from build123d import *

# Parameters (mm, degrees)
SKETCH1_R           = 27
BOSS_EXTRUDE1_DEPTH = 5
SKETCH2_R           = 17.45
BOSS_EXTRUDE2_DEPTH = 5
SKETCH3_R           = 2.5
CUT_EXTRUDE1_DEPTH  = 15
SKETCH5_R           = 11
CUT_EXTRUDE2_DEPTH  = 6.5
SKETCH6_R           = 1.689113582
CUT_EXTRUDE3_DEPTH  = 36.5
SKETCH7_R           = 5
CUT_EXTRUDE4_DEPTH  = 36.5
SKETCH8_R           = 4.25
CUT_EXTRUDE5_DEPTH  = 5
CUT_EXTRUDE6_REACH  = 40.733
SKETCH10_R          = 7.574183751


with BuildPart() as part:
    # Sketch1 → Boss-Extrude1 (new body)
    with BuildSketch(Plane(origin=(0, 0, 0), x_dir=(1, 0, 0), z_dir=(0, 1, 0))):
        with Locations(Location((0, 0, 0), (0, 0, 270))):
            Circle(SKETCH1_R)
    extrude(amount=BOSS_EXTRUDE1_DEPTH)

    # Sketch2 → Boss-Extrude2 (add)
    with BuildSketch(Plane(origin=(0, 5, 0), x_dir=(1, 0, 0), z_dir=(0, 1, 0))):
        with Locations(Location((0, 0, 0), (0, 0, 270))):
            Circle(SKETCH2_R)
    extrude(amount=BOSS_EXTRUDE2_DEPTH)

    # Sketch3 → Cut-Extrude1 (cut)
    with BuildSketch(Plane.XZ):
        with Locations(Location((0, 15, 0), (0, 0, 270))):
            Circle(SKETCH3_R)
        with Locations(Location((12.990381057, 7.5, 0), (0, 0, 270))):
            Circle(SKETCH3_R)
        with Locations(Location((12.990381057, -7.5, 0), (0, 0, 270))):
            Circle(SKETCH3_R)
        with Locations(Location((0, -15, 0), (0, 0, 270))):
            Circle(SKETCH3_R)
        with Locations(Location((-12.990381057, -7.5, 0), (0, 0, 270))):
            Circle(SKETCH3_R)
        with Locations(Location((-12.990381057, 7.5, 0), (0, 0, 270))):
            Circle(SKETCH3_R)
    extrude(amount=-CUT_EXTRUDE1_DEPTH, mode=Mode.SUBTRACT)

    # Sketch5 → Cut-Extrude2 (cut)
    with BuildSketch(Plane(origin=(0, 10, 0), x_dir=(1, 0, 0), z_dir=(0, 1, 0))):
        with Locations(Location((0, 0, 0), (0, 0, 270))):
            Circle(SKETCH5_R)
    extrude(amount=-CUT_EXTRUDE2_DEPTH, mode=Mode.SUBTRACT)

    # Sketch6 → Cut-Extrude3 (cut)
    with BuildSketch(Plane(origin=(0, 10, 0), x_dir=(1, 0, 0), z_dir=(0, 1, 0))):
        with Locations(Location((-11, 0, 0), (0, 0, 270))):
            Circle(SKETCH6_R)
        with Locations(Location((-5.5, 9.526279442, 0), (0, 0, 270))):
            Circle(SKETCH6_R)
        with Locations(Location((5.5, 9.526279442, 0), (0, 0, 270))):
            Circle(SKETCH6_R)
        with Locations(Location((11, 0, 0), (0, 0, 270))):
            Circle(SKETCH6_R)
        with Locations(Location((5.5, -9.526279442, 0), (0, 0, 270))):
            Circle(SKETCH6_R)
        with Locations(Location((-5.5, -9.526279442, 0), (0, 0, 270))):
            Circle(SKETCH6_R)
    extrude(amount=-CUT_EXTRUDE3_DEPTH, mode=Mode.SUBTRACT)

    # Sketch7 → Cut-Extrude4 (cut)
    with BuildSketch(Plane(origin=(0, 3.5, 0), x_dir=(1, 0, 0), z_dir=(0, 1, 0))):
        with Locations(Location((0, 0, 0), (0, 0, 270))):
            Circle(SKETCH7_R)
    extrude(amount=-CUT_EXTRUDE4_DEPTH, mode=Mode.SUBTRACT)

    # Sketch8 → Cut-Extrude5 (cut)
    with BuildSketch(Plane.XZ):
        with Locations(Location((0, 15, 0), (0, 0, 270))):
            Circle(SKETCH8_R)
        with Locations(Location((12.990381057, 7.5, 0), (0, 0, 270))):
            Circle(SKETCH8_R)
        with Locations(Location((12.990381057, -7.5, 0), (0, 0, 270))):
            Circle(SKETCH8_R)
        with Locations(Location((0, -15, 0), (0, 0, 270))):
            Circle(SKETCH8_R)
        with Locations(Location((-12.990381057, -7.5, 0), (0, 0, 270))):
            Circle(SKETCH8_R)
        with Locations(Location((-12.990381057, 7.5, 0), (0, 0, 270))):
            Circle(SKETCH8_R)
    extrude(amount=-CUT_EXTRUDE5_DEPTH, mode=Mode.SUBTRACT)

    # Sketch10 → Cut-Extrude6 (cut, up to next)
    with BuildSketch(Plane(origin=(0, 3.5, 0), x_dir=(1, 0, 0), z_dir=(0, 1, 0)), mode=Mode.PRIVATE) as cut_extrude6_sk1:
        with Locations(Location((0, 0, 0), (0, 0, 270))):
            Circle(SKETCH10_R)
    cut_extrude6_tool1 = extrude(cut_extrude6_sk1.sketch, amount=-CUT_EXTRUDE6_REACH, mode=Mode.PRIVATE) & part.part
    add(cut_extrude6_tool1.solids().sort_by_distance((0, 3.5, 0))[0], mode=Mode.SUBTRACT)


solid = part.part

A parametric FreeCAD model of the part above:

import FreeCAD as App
import Part
import Sketcher
from FreeCAD import Vector

doc = App.newDocument("Part")
body = doc.addObject("PartDesign::Body", "Body")

sketch1 = body.newObject("Sketcher::SketchObject", "Sketch")
sketch1.AttachmentSupport = (doc.getObject("XZ_Plane"), [""])
sketch1.MapMode = "FlatFace"
sketch1.addGeometry(Part.Circle(Vector(0, 0, 0), Vector(0, 0, 1), 27), False)
sketch1.addConstraint(Sketcher.Constraint("Coincident", 0, 3, -1, 1))
sketch1.addConstraint(Sketcher.Constraint("Diameter", 0, 54.0))
pad1 = body.newObject("PartDesign::Pad", "Pad")
pad1.Profile = sketch1
pad1.Length = 5
pad1.Reversed = True

sketch2 = body.newObject("Sketcher::SketchObject", "Sketch001")
sketch2.AttachmentSupport = (doc.getObject("XZ_Plane"), [""])
sketch2.MapMode = "FlatFace"
sketch2.AttachmentOffset = App.Placement(Vector(0, 0, -5), App.Rotation())
sketch2.addGeometry(Part.Circle(Vector(0, 0, 0), Vector(0, 0, 1), 17), False)
sketch2.addConstraint(Sketcher.Constraint("Coincident", 0, 3, -1, 1))
sketch2.addConstraint(Sketcher.Constraint("Diameter", 0, 34.9))
pad2 = body.newObject("PartDesign::Pad", "Pad001")
pad2.Profile = sketch2
pad2.Length = 5
pad2.Reversed = True

sketch3 = body.newObject("Sketcher::SketchObject", "Sketch002")
sketch3.AttachmentSupport = (doc.getObject("XZ_Plane"), [""])
sketch3.MapMode = "FlatFace"
sketch3.addGeometry(Part.Circle(Vector(0, 15, 0), Vector(0, 0, 1), 2.5), False)
sketch3.addGeometry(Part.Circle(Vector(13, 7.5, 0), Vector(0, 0, 1), 2.5), False)
sketch3.addGeometry(Part.Circle(Vector(13, -7.5, 0), Vector(0, 0, 1), 2.5), False)
sketch3.addGeometry(Part.Circle(Vector(0, -15, 0), Vector(0, 0, 1), 2.5), False)
sketch3.addGeometry(Part.Circle(Vector(-13, -7.5, 0), Vector(0, 0, 1), 2.5), False)
sketch3.addGeometry(Part.Circle(Vector(-13, 7.5, 0), Vector(0, 0, 1), 2.5), False)
sketch3.addConstraint(Sketcher.Constraint("Equal", 0, 1))
sketch3.addConstraint(Sketcher.Constraint("Equal", 1, 2))
sketch3.addConstraint(Sketcher.Constraint("Equal", 2, 3))
sketch3.addConstraint(Sketcher.Constraint("Equal", 3, 4))
sketch3.addConstraint(Sketcher.Constraint("Equal", 4, 5))
sketch3.addConstraint(Sketcher.Constraint("Symmetric", 0, 3, 3, 3, -1, 1))
sketch3.addConstraint(Sketcher.Constraint("Symmetric", 1, 3, 4, 3, -1, 1))
sketch3.addConstraint(Sketcher.Constraint("Symmetric", 2, 3, 5, 3, -1, 1))
sketch3.addConstraint(Sketcher.Constraint("Symmetric", 2, 3, 4, 3, -2))
sketch3.addConstraint(Sketcher.Constraint("PointOnObject", 0, 3, -2))
sketch3.addConstraint(Sketcher.Constraint("Diameter", 0, 5.0))
sketch3.addConstraint(Sketcher.Constraint("DistanceY", -1, 1, 0, 3, 15.0))
sketch3.addConstraint(Sketcher.Constraint("DistanceY", 2, 3, 1, 3, 15.0))
sketch3.addConstraint(Sketcher.Constraint("DistanceX", -1, 1, 1, 3, 12.990381))
pocket1 = body.newObject("PartDesign::Pocket", "Pocket")
pocket1.Profile = sketch3
pocket1.Length = 15

sketch4 = body.newObject("Sketcher::SketchObject", "Sketch003")
sketch4.AttachmentSupport = (doc.getObject("XZ_Plane"), [""])
sketch4.MapMode = "FlatFace"
sketch4.AttachmentOffset = App.Placement(Vector(0, 0, -10), App.Rotation())
sketch4.addGeometry(Part.Circle(Vector(0, 0, 0), Vector(0, 0, 1), 11), False)
sketch4.addConstraint(Sketcher.Constraint("Coincident", 0, 3, -1, 1))
sketch4.addConstraint(Sketcher.Constraint("Diameter", 0, 22.0))
pocket2 = body.newObject("PartDesign::Pocket", "Pocket001")
pocket2.Profile = sketch4
pocket2.Length = 6.5
pocket2.Reversed = True

sketch5 = body.newObject("Sketcher::SketchObject", "Sketch004")
sketch5.AttachmentSupport = (doc.getObject("XZ_Plane"), [""])
sketch5.MapMode = "FlatFace"
sketch5.AttachmentOffset = App.Placement(Vector(0, 0, -10), App.Rotation())
sketch5.addGeometry(Part.Circle(Vector(-11, 0, 0), Vector(0, 0, 1), 1.7), False)
sketch5.addGeometry(Part.Circle(Vector(-5.5, -9.5, 0), Vector(0, 0, 1), 1.7), False)
sketch5.addGeometry(Part.Circle(Vector(5.5, -9.5, 0), Vector(0, 0, 1), 1.7), False)
sketch5.addGeometry(Part.Circle(Vector(11, 0, 0), Vector(0, 0, 1), 1.7), False)
sketch5.addGeometry(Part.Circle(Vector(5.5, 9.5, 0), Vector(0, 0, 1), 1.7), False)
sketch5.addGeometry(Part.Circle(Vector(-5.5, 9.5, 0), Vector(0, 0, 1), 1.7), False)
sketch5.addConstraint(Sketcher.Constraint("Equal", 0, 1))
sketch5.addConstraint(Sketcher.Constraint("Equal", 1, 2))
sketch5.addConstraint(Sketcher.Constraint("Equal", 2, 3))
sketch5.addConstraint(Sketcher.Constraint("Equal", 3, 4))
sketch5.addConstraint(Sketcher.Constraint("Equal", 4, 5))
sketch5.addConstraint(Sketcher.Constraint("Symmetric", 0, 3, 3, 3, -1, 1))
sketch5.addConstraint(Sketcher.Constraint("Symmetric", 1, 3, 4, 3, -1, 1))
sketch5.addConstraint(Sketcher.Constraint("Symmetric", 2, 3, 5, 3, -1, 1))
sketch5.addConstraint(Sketcher.Constraint("Symmetric", 1, 3, 2, 3, -2))
sketch5.addConstraint(Sketcher.Constraint("PointOnObject", 0, 3, -1))
sketch5.addConstraint(Sketcher.Constraint("DistanceX", 0, 3, -1, 1, 11.0))
sketch5.addConstraint(Sketcher.Constraint("DistanceX", 1, 3, 2, 3, 11.0))
sketch5.addConstraint(Sketcher.Constraint("Diameter", 0, 3.378227))
sketch5.addConstraint(Sketcher.Constraint("DistanceY", 1, 3, -1, 1, 9.526279))
pocket3 = body.newObject("PartDesign::Pocket", "Pocket002")
pocket3.Profile = sketch5
pocket3.Length = 36.5
pocket3.Reversed = True

sketch6 = body.newObject("Sketcher::SketchObject", "Sketch005")
sketch6.AttachmentSupport = (doc.getObject("XZ_Plane"), [""])
sketch6.MapMode = "FlatFace"
sketch6.AttachmentOffset = App.Placement(Vector(0, 0, -3.5), App.Rotation())
sketch6.addGeometry(Part.Circle(Vector(0, 0, 0), Vector(0, 0, 1), 5), False)
sketch6.addConstraint(Sketcher.Constraint("Coincident", 0, 3, -1, 1))
sketch6.addConstraint(Sketcher.Constraint("Diameter", 0, 10.0))
pocket4 = body.newObject("PartDesign::Pocket", "Pocket003")
pocket4.Profile = sketch6
pocket4.Length = 36.5
pocket4.Reversed = True

sketch7 = body.newObject("Sketcher::SketchObject", "Sketch006")
sketch7.AttachmentSupport = (doc.getObject("XZ_Plane"), [""])
sketch7.MapMode = "FlatFace"
sketch7.addGeometry(Part.Circle(Vector(0, 15, 0), Vector(0, 0, 1), 4.2), False)
sketch7.addGeometry(Part.Circle(Vector(13, 7.5, 0), Vector(0, 0, 1), 4.2), False)
sketch7.addGeometry(Part.Circle(Vector(13, -7.5, 0), Vector(0, 0, 1), 4.2), False)
sketch7.addGeometry(Part.Circle(Vector(0, -15, 0), Vector(0, 0, 1), 4.2), False)
sketch7.addGeometry(Part.Circle(Vector(-13, -7.5, 0), Vector(0, 0, 1), 4.2), False)
sketch7.addGeometry(Part.Circle(Vector(-13, 7.5, 0), Vector(0, 0, 1), 4.2), False)
sketch7.addConstraint(Sketcher.Constraint("Equal", 0, 1))
sketch7.addConstraint(Sketcher.Constraint("Equal", 1, 2))
sketch7.addConstraint(Sketcher.Constraint("Equal", 2, 3))
sketch7.addConstraint(Sketcher.Constraint("Equal", 3, 4))
sketch7.addConstraint(Sketcher.Constraint("Equal", 4, 5))
sketch7.addConstraint(Sketcher.Constraint("Symmetric", 0, 3, 3, 3, -1, 1))
sketch7.addConstraint(Sketcher.Constraint("Symmetric", 1, 3, 4, 3, -1, 1))
sketch7.addConstraint(Sketcher.Constraint("Symmetric", 2, 3, 5, 3, -1, 1))
sketch7.addConstraint(Sketcher.Constraint("Symmetric", 2, 3, 4, 3, -2))
sketch7.addConstraint(Sketcher.Constraint("PointOnObject", 0, 3, -2))
sketch7.addConstraint(Sketcher.Constraint("Diameter", 0, 8.5))
sketch7.addConstraint(Sketcher.Constraint("DistanceY", -1, 1, 0, 3, 15.0))
sketch7.addConstraint(Sketcher.Constraint("DistanceY", 2, 3, 1, 3, 15.0))
sketch7.addConstraint(Sketcher.Constraint("DistanceX", -1, 1, 1, 3, 12.990381))
pocket5 = body.newObject("PartDesign::Pocket", "Pocket004")
pocket5.Profile = sketch7
pocket5.Length = 5

sketch8 = body.newObject("Sketcher::SketchObject", "Sketch007")
sketch8.AttachmentSupport = (doc.getObject("XZ_Plane"), [""])
sketch8.MapMode = "FlatFace"
sketch8.AttachmentOffset = App.Placement(Vector(0, 0, -3.5), App.Rotation())
sketch8.addGeometry(Part.Circle(Vector(0, 0, 0), Vector(0, 0, 1), 8), False)
sketch8.addConstraint(Sketcher.Constraint("Coincident", 0, 3, -1, 1))
sketch8.addConstraint(Sketcher.Constraint("Diameter", 0, 15.148368))
pocket6 = body.newObject("PartDesign::Pocket", "Pocket005")
pocket6.Profile = sketch8
pocket6.Length = 3.5
pocket6.Reversed = True

doc.recompute()
